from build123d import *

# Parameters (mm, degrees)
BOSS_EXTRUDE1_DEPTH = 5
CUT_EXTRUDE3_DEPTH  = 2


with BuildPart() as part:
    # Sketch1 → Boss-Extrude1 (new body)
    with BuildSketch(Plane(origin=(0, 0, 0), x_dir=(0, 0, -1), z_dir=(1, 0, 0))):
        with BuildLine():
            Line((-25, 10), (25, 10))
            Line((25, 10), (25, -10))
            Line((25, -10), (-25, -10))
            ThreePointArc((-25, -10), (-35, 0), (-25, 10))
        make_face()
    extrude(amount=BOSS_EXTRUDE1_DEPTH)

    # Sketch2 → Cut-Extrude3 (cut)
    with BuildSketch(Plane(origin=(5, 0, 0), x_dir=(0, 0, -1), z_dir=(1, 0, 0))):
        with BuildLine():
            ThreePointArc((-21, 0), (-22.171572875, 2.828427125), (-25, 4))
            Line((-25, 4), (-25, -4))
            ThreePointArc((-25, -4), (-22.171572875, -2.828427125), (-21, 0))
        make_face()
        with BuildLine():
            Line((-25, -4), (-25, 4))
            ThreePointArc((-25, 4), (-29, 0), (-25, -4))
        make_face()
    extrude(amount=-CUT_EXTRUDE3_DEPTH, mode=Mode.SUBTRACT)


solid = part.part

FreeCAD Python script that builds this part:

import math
import FreeCAD as App
import Part
import Sketcher

V = App.Vector

doc = App.newDocument("Part")
params = doc.addObject("Spreadsheet::Sheet", "Params")
for row, (alias, value) in enumerate([
    ("sketch1_radius", "10 mm"),
    ("sketch1_height", "50 mm"),
    ("pad1_length", "5 mm"),
    ("sketch2_radius", "4 mm"),
    ("pocket1_length", "2 mm"),
], start=1):
    params.set(f"A{row}", alias)
    params.set(f"B{row}", "=" + value)
    params.setAlias(f"B{row}", alias)

body = doc.addObject("PartDesign::Body", "Body")

sketch1 = doc.addObject("Sketcher::SketchObject", "Sketch")
body.addObject(sketch1)
sketch1.AttachmentSupport = (doc.YZ_Plane, [""])
sketch1.MapMode = "FlatFace"
sketch1.addGeometry([
    Part.LineSegment(V(10, -25, 0), V(10, 25, 0)),
    Part.ArcOfCircle(Part.Circle(V(0, 25, 0), V(0, 0, 1), 10), math.radians(0), math.radians(180)),
    Part.LineSegment(V(-10, 25, 0), V(-10, -25, 0)),
    Part.LineSegment(V(-10, -25, 0), V(10, -25, 0)),
], False)
sketch1.addConstraint([
    Sketcher.Constraint("Tangent", 0, 2, 1, 1),
    Sketcher.Constraint("Tangent", 1, 2, 2, 1),
    Sketcher.Constraint("Coincident", 2, 2, 3, 1),
    Sketcher.Constraint("Coincident", 3, 2, 0, 1),
    Sketcher.Constraint("Vertical", 0),
    Sketcher.Constraint("Vertical", 2),
    Sketcher.Constraint("Horizontal", 3),
    Sketcher.Constraint("Symmetric", 0, 2, 2, 2, -1, 1),
    Sketcher.Constraint("Radius", 1, 10.0),
    Sketcher.Constraint("DistanceY", 0, 1, 0, 2, 50.0),
])
sketch1.setExpression("Constraints[8]", "Params.sketch1_radius")
sketch1.setExpression("Constraints[9]", "Params.sketch1_height")
pad1 = doc.addObject("PartDesign::Pad", "Pad")
body.addObject(pad1)
pad1.Profile = sketch1
pad1.setExpression("Length", "Params.pad1_length")

sketch2 = doc.addObject("Sketcher::SketchObject", "Sketch001")
body.addObject(sketch2)
sketch2.AttachmentSupport = (doc.YZ_Plane, [""])
sketch2.MapMode = "FlatFace"
sketch2.AttachmentOffset = App.Placement(V(0, 0, 5), App.Rotation())
sketch2.addGeometry([
    Part.ArcOfCircle(Part.Circle(V(0, 25, 0), V(0, 0, 1), 4), math.radians(-90), math.radians(0)),
    Part.ArcOfCircle(Part.Circle(V(0, 25, 0), V(0, 0, 1), 4), math.radians(0), math.radians(180)),
    Part.ArcOfCircle(Part.Circle(V(0, 25, 0), V(0, 0, 1), 4), math.radians(180), math.radians(270)),
], False)
sketch2.addConstraint([
    Sketcher.Constraint("Tangent", 0, 2, 1, 1),
    Sketcher.Constraint("Tangent", 1, 2, 2, 1),
    Sketcher.Constraint("Tangent", 2, 2, 0, 1),
    Sketcher.Constraint("Symmetric", 0, 2, 1, 2, -2),
    Sketcher.Constraint("PointOnObject", 2, 2, -2),
    Sketcher.Constraint("Horizontal", 2, 3, 0, 2),
    Sketcher.Constraint("Radius", 0, 4.0),
    Sketcher.Constraint("DistanceY", -1, 1, 0, 3, 25.0),
])
sketch2.setExpression("Constraints[6]", "Params.sketch2_radius")
pocket1 = doc.addObject("PartDesign::Pocket", "Pocket")
body.addObject(pocket1)
pocket1.Profile = sketch2
pocket1.setExpression("Length", "Params.pocket1_length")

doc.recompute()
